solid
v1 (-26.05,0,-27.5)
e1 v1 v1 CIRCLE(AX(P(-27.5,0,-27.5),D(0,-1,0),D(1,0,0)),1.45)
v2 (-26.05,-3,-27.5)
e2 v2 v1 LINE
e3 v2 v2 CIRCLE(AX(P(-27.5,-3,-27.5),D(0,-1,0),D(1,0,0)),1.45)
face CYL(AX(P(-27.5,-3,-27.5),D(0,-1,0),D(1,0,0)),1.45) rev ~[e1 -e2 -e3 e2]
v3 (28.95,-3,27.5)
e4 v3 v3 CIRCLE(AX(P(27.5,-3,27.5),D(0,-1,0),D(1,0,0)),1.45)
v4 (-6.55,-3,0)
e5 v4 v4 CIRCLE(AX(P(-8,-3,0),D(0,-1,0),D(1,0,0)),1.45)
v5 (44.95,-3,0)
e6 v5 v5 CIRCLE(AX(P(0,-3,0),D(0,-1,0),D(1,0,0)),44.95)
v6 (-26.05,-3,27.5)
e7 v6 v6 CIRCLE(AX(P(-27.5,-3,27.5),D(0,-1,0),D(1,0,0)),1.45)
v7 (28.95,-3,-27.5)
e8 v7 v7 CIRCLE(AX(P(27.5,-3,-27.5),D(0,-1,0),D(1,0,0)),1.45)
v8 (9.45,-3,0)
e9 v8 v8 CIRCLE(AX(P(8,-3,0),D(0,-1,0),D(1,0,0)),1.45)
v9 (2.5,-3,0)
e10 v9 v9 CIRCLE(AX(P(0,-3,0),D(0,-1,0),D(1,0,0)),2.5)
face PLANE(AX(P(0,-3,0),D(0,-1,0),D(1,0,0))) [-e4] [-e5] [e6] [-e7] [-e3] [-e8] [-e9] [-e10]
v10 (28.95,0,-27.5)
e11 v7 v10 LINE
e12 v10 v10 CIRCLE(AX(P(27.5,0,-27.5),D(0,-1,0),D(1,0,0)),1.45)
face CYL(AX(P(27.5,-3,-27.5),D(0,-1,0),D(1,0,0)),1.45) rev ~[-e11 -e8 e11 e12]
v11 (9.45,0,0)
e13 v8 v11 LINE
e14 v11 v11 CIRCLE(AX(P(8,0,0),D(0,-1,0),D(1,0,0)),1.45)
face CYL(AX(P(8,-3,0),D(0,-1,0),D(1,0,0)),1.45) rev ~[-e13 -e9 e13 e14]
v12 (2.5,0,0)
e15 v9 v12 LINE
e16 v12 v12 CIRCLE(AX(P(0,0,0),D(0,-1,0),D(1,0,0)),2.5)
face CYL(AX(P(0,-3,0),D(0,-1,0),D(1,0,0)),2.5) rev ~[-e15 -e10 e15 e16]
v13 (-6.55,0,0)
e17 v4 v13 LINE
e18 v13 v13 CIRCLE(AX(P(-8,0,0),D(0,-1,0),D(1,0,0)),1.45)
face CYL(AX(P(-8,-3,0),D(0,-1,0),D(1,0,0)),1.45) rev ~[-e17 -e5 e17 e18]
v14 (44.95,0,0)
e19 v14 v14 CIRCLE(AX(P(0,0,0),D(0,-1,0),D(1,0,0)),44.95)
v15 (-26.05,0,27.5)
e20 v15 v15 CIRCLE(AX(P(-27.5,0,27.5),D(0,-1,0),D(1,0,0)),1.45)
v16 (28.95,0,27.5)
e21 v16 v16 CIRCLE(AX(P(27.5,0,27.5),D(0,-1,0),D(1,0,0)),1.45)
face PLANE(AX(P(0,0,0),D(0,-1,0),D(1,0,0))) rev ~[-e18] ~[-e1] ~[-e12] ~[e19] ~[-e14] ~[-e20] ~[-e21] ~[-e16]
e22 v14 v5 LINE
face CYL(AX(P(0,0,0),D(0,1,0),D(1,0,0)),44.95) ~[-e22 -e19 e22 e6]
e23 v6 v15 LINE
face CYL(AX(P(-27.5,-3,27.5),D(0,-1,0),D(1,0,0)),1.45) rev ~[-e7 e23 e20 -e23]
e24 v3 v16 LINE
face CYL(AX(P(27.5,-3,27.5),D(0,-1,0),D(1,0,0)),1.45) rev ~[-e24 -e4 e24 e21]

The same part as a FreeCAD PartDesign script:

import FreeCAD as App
import Part
import Sketcher
from FreeCAD import Vector
Q = App.Units.Quantity

doc = App.newDocument("Part")
body = doc.addObject("PartDesign::Body", "Body")

sketch1 = body.newObject("Sketcher::SketchObject", "Sketch")
sketch1.AttachmentSupport = (doc.getObject("XZ_Plane"), [""])
sketch1.MapMode = "FlatFace"
sketch1.addGeometry(Part.Circle(Vector(0, 0, 0), Vector(0, 0, 1), 44.95), False)
sketch1.addConstraint([
    Sketcher.Constraint("Coincident", 0, 3, -1, 1),
    Sketcher.Constraint("Diameter", 0, Q("89.9 mm")),
])
pad1 = body.newObject("PartDesign::Pad", "Pad")
pad1.Profile = sketch1
pad1.Length = 3

sketch2 = body.newObject("Sketcher::SketchObject", "Sketch001")
sketch2.AttachmentSupport = (doc.getObject("XZ_Plane"), [""])
sketch2.MapMode = "FlatFace"
sketch2.AttachmentOffset = App.Placement(Vector(0, 0, 3), App.Rotation())
sketch2.addGeometry([
    Part.Circle(Vector(-8, 0, 0), Vector(0, 0, 1), 1.45),
    Part.Circle(Vector(8, 0, 0), Vector(0, 0, 1), 1.45),
    Part.Circle(Vector(0, 0, 0), Vector(0, 0, 1), 2.5),
], False)
sketch2.addConstraint([
    Sketcher.Constraint("Coincident", 2, 3, -1, 1),
    Sketcher.Constraint("Equal", 0, 1),
    Sketcher.Constraint("Symmetric", 0, 3, 1, 3, -1, 1),
    Sketcher.Constraint("PointOnObject", 0, 3, -1),
    Sketcher.Constraint("Diameter", 2, Q("5 mm")),
    Sketcher.Constraint("Diameter", 0, Q("2.9 mm")),
    Sketcher.Constraint("DistanceX", 0, 3, -1, 1, Q("8 mm")),
])
pocket1 = body.newObject("PartDesign::Pocket", "Pocket")
pocket1.Profile = sketch2
pocket1.Type = "ThroughAll"

sketch3 = body.newObject("Sketcher::SketchObject", "Sketch002")
sketch3.AttachmentSupport = (doc.getObject("XZ_Plane"), [""])
sketch3.MapMode = "FlatFace"
sketch3.AttachmentOffset = App.Placement(Vector(0, 0, 3), App.Rotation())
sketch3.addGeometry([
    Part.Circle(Vector(-27.5, 27.5, 0), Vector(0, 0, 1), 1.45),
    Part.Circle(Vector(27.5, 27.5, 0), Vector(0, 0, 1), 1.45),
    Part.Circle(Vector(-27.5, -27.5, 0), Vector(0, 0, 1), 1.45),
    Part.Circle(Vector(27.5, -27.5, 0), Vector(0, 0, 1), 1.45),
], False)
sketch3.addConstraint([
    Sketcher.Constraint("Equal", 0, 1),
    Sketcher.Constraint("Equal", 1, 2),
    Sketcher.Constraint("Equal", 2, 3),
    Sketcher.Constraint("Symmetric", 1, 3, 2, 3, -1, 1),
    Sketcher.Constraint("Symmetric", 0, 3, 3, 3, -1, 1),
    Sketcher.Constraint("Symmetric", 0, 3, 1, 3, -2),
    Sketcher.Constraint("Diameter", 0, Q("2.9 mm")),
    Sketcher.Constraint("DistanceX", 0, 3, 1, 3, Q("55 mm")),
    Sketcher.Constraint("DistanceY", 2, 3, 0, 3, Q("55 mm")),
])
pocket2 = body.newObject("PartDesign::Pocket", "Pocket001")
pocket2.Profile = sketch3
pocket2.Type = "ThroughAll"

doc.recompute()
